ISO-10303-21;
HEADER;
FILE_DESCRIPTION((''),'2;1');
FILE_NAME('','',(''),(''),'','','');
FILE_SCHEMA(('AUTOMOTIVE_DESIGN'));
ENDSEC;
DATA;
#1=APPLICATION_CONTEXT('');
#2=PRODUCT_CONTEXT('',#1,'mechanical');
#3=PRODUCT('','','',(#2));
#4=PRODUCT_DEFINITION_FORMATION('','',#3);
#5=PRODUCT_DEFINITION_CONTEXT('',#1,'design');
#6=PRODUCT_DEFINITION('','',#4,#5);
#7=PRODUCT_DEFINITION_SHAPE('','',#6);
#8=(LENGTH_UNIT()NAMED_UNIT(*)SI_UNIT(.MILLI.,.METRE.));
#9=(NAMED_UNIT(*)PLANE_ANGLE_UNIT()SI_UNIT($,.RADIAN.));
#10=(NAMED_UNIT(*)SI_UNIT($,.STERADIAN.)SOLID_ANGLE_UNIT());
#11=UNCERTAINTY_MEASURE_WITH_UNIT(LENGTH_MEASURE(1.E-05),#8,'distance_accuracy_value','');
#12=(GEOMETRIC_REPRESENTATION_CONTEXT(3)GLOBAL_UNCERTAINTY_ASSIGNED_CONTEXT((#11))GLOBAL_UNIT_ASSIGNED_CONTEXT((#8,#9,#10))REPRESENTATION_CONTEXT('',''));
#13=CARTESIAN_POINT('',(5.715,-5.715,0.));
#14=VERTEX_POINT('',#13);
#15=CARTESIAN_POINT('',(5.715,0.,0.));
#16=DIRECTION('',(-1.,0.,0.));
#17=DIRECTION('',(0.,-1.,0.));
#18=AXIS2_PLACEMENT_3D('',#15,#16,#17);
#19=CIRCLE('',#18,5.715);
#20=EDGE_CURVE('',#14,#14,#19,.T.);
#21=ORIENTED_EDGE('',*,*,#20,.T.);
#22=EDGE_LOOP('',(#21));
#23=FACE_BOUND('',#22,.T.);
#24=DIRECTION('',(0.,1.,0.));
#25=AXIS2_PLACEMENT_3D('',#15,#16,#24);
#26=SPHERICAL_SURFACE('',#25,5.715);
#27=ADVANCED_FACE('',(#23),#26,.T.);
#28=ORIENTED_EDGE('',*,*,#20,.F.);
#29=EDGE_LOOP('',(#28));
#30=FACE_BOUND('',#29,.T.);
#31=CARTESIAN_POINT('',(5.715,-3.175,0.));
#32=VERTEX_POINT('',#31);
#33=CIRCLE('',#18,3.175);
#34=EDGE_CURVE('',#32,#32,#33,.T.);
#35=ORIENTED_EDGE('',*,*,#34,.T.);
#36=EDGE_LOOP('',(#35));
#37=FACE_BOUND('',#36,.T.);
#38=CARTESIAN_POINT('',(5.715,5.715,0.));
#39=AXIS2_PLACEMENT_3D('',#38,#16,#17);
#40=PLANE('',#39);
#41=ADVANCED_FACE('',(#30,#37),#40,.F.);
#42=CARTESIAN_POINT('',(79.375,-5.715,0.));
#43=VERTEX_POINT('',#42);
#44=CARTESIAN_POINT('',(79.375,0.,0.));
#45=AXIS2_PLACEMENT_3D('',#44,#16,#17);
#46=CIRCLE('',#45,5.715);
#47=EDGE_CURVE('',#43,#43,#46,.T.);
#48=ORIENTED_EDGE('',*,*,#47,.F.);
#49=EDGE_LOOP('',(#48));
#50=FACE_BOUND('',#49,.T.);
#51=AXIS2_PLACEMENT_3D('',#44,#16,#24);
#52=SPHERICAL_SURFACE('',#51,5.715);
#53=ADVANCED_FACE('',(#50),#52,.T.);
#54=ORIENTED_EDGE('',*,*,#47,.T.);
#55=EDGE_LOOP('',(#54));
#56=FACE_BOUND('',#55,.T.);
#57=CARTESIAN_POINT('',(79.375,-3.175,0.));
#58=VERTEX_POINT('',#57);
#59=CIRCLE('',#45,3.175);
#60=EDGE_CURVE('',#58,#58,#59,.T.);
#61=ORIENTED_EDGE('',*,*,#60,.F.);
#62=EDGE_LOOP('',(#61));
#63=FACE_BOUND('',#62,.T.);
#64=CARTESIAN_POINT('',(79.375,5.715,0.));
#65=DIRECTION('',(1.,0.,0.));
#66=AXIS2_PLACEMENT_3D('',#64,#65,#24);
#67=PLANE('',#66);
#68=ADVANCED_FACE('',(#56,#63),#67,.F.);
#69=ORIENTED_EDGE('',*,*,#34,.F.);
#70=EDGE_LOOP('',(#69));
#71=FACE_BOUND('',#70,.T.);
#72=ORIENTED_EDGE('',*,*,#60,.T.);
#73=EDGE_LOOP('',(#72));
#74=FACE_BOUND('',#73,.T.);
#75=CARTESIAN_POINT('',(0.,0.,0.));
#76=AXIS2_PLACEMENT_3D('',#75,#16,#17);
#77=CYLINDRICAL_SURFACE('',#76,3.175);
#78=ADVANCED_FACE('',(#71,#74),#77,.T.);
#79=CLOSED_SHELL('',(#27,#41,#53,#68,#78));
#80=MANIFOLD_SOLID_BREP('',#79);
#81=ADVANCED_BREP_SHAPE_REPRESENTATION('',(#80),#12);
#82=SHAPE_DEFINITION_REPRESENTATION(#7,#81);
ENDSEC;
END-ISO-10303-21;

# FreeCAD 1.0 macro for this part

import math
import FreeCAD as App
import Part
import Sketcher
Q = App.Units.Quantity

doc = App.newDocument("Part")
params = doc.addObject("Spreadsheet::Sheet", "Params")
for row, (alias, value) in enumerate([
    ("sketch1_width", "2.9 in"),
    ("sketch1_height", "0.1 in"),
    ("sketch1_radius", "0.225 in"),
    ("sketch1_width2", "3.35 in"),
    ("revolution_angle", "360 deg"),
], start=1):
    params.set(f"A{row}", alias)
    params.set(f"B{row}", "=" + value)
    params.setAlias(f"B{row}", alias)

body = doc.addObject("PartDesign::Body", "Body")

# Sketch on XY plane
sketch1 = doc.addObject("Sketcher::SketchObject", "Sketch")
body.addObject(sketch1)
sketch1.AttachmentSupport = (doc.XY_Plane, [""])
sketch1.MapMode = "FlatFace"
sketch1.addGeometry(Part.LineSegment(App.Vector(5.7, 3.2, 0), App.Vector(5.7, 5.7, 0)), False)
sketch1.addGeometry(Part.ArcOfCircle(Part.Circle(App.Vector(5.7, 0, 0), App.Vector(0, 0, 1), 5.7), math.radians(90), math.radians(180)), False)
sketch1.addGeometry(Part.LineSegment(App.Vector(0, 0, 0), App.Vector(85.1, 0, 0)), False)
sketch1.addGeometry(Part.ArcOfCircle(Part.Circle(App.Vector(79.4, 0, 0), App.Vector(0, 0, 1), 5.7), math.radians(0), math.radians(90)), False)
sketch1.addGeometry(Part.LineSegment(App.Vector(79.4, 5.7, 0), App.Vector(79.4, 3.2, 0)), False)
sketch1.addGeometry(Part.LineSegment(App.Vector(79.4, 3.2, 0), App.Vector(5.7, 3.2, 0)), False)
sketch1.addConstraint(Sketcher.Constraint("Coincident", 0, 2, 1, 1))
sketch1.addConstraint(Sketcher.Constraint("Coincident", 1, 2, 2, 1))
sketch1.addConstraint(Sketcher.Constraint("Coincident", 2, 2, 3, 1))
sketch1.addConstraint(Sketcher.Constraint("Coincident", 3, 2, 4, 1))
sketch1.addConstraint(Sketcher.Constraint("Coincident", 4, 2, 5, 1))
sketch1.addConstraint(Sketcher.Constraint("Coincident", 5, 2, 0, 1))
sketch1.addConstraint(Sketcher.Constraint("Vertical", 0))
sketch1.addConstraint(Sketcher.Constraint("Horizontal", 2))
sketch1.addConstraint(Sketcher.Constraint("Vertical", 4))
sketch1.addConstraint(Sketcher.Constraint("Horizontal", 5))
sketch1.addConstraint(Sketcher.Constraint("Coincident", 1, 2, -1, 1))
sketch1.addConstraint(Sketcher.Constraint("Equal", 1, 3))
sketch1.addConstraint(Sketcher.Constraint("PointOnObject", 1, 3, -1))
sketch1.addConstraint(Sketcher.Constraint("PointOnObject", 3, 3, -1))
sketch1.addConstraint(Sketcher.Constraint("Vertical", 1, 3, 0, 2))
sketch1.addConstraint(Sketcher.Constraint("DistanceX", 5, 2, 5, 1, Q("2.9 in")))
sketch1.addConstraint(Sketcher.Constraint("DistanceY", 0, 1, 0, 2, Q("0.1 in")))
sketch1.addConstraint(Sketcher.Constraint("Radius", 1, Q("0.225 in")))
sketch1.addConstraint(Sketcher.Constraint("DistanceX", 2, 1, 2, 2, Q("3.35 in")))
sketch1.setExpression("Constraints[15]", "Params.sketch1_width")
sketch1.setExpression("Constraints[16]", "Params.sketch1_height")
sketch1.setExpression("Constraints[17]", "Params.sketch1_radius")
sketch1.setExpression("Constraints[18]", "Params.sketch1_width2")
revolution = doc.addObject("PartDesign::Revolution", "Revolution")
body.addObject(revolution)
revolution.Profile = sketch1
revolution.ReferenceAxis = (sketch1, ["H_Axis"])
revolution.setExpression("Angle", "Params.revolution_angle")

doc.recompute()
